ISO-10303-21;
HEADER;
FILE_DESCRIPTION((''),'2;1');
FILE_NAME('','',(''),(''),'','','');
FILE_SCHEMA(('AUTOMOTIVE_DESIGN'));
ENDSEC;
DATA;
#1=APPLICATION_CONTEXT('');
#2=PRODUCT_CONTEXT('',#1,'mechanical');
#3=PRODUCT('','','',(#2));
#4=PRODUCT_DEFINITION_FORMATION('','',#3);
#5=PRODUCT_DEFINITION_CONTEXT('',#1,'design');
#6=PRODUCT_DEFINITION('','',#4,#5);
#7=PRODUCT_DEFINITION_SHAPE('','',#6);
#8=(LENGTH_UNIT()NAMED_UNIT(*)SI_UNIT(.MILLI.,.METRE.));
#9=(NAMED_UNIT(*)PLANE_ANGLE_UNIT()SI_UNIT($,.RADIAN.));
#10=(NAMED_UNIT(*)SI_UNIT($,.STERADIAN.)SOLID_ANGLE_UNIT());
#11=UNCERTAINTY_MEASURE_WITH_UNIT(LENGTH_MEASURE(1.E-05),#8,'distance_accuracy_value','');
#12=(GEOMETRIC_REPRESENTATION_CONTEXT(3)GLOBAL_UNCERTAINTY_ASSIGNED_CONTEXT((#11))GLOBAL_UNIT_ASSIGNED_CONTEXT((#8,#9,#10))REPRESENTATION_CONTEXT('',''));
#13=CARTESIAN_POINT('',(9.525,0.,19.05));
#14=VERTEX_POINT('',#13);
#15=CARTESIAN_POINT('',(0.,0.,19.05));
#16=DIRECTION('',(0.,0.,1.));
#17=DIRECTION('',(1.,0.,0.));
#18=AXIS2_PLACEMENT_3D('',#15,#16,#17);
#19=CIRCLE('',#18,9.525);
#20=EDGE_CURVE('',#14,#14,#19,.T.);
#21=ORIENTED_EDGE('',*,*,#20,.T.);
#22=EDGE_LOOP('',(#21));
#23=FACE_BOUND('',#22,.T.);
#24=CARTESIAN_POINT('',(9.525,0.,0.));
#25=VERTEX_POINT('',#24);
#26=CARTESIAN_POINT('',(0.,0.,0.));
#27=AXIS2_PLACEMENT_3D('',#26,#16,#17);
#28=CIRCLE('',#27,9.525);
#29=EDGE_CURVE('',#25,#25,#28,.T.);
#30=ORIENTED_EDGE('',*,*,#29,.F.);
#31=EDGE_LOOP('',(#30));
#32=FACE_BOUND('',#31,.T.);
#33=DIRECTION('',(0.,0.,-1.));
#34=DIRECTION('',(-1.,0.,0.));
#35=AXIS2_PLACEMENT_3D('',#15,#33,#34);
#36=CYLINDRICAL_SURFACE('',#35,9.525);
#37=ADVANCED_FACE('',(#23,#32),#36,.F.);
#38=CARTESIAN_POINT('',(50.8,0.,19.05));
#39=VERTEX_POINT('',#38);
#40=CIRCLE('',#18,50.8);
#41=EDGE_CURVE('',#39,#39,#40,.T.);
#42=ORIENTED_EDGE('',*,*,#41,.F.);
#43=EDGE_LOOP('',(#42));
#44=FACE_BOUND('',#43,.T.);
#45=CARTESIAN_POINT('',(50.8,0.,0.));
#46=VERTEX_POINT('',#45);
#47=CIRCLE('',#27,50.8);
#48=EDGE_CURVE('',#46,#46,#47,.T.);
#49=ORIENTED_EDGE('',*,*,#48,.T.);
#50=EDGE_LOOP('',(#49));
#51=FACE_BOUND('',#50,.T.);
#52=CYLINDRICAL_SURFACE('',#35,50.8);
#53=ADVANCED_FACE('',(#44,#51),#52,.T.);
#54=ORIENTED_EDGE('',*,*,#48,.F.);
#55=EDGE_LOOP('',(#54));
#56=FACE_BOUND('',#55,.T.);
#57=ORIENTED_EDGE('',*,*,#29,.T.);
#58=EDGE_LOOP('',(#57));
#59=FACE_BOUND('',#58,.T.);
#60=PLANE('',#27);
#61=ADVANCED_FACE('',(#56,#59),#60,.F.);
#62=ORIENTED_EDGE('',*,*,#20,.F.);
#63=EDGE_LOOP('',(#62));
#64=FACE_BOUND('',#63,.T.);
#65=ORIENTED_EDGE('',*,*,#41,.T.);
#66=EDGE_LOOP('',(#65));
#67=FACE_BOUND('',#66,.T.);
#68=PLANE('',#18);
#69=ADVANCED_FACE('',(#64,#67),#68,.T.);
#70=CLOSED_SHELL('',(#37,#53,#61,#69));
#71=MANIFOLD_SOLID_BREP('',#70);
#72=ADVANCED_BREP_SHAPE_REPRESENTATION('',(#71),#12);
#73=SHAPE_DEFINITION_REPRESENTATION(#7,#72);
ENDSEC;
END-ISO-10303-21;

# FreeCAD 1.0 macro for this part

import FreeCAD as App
import Part
import Sketcher
from FreeCAD import Vector
Q = App.Units.Quantity

doc = App.newDocument("Part")
body = doc.addObject("PartDesign::Body", "Body")

# Sketch on XY plane
sketch1 = body.newObject("Sketcher::SketchObject", "Sketch")
sketch1.AttachmentSupport = (doc.getObject("XY_Plane"), [""])
sketch1.MapMode = "FlatFace"
sketch1.addGeometry([
    Part.Circle(Vector(0, 0, 0), Vector(0, 0, 1), 51),
    Part.Circle(Vector(0, 0, 0), Vector(0, 0, 1), 10),
], False)
sketch1.addConstraint([
    Sketcher.Constraint("Coincident", 0, 3, -1, 1),
    Sketcher.Constraint("Coincident", 1, 3, -1, 1),
    Sketcher.Constraint("Diameter", 0, Q("4 in")),
    Sketcher.Constraint("Diameter", 1, Q("0.75 in")),
])
pad1 = body.newObject("PartDesign::Pad", "Pad")
pad1.Profile = sketch1
pad1.Length = Q("0.75 in")

doc.recompute()
